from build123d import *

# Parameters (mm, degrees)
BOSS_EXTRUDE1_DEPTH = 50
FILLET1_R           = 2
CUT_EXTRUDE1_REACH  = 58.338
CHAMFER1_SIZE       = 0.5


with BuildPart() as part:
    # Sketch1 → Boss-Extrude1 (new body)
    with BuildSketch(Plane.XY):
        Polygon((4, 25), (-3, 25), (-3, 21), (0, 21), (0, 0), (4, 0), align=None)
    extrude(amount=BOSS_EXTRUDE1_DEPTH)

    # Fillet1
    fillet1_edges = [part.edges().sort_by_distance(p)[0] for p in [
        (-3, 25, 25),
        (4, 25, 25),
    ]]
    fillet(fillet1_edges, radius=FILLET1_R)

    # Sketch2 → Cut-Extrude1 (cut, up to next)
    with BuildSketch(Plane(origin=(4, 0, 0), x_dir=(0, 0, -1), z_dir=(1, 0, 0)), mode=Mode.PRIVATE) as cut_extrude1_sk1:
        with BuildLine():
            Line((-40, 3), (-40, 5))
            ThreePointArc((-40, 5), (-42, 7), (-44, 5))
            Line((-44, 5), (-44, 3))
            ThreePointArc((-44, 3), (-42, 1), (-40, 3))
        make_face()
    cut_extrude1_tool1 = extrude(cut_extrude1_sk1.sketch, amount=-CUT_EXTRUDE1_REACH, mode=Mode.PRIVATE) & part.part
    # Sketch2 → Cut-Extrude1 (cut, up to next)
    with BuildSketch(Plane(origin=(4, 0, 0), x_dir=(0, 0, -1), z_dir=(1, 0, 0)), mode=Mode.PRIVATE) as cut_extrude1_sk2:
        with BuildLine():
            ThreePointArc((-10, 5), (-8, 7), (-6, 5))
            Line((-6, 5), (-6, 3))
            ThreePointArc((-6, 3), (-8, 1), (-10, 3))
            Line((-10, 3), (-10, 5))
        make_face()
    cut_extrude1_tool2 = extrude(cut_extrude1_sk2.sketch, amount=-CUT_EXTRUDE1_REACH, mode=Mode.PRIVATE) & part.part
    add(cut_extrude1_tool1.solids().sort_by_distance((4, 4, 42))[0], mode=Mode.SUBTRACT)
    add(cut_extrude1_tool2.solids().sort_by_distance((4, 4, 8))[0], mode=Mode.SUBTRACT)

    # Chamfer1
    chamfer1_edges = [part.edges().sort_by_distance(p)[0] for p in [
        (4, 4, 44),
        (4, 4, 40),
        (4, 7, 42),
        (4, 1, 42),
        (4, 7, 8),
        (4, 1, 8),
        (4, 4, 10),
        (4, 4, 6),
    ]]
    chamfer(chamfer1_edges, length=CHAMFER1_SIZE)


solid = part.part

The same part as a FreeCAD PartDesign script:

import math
import FreeCAD as App
import Part
import Sketcher


def edges_at(feature, points):
    """Names of the edges that pass closest to the given points."""
    edges = feature.Shape.Edges
    near = lambda p: min(range(len(edges)), key=lambda i: edges[i].distToShape(Part.Vertex(*p))[0])
    return sorted({f"Edge{near(p) + 1}" for p in points})

doc = App.newDocument("Part")
body = doc.addObject("PartDesign::Body", "Body")

# Sketch on XY plane
sketch1 = body.newObject("Sketcher::SketchObject", "Sketch")
sketch1.AttachmentSupport = (doc.getObject("XY_Plane"), [""])
sketch1.MapMode = "FlatFace"
sketch1.addGeometry([
    Part.LineSegment(App.Vector(4, 25, 0), App.Vector(-3, 25, 0)),  # 0
    Part.LineSegment(App.Vector(-3, 25, 0), App.Vector(-3, 21, 0)),  # 1
    Part.LineSegment(App.Vector(-3, 21, 0), App.Vector(0, 21, 0)),  # 2
    Part.LineSegment(App.Vector(0, 21, 0), App.Vector(0, 0, 0)),  # 3
    Part.LineSegment(App.Vector(0, 0, 0), App.Vector(4, 0, 0)),  # 4
    Part.LineSegment(App.Vector(4, 0, 0), App.Vector(4, 25, 0)),  # 5
], False)
sketch1.addConstraint([
    Sketcher.Constraint("Coincident", 0, 2, 1, 1),
    Sketcher.Constraint("Coincident", 1, 2, 2, 1),
    Sketcher.Constraint("Coincident", 2, 2, 3, 1),
    Sketcher.Constraint("Coincident", 3, 2, 4, 1),
    Sketcher.Constraint("Coincident", 4, 2, 5, 1),
    Sketcher.Constraint("Coincident", 5, 2, 0, 1),
    Sketcher.Constraint("Horizontal", 0),
    Sketcher.Constraint("Vertical", 1),
    Sketcher.Constraint("Horizontal", 2),
    Sketcher.Constraint("Vertical", 3),
    Sketcher.Constraint("Horizontal", 4),
    Sketcher.Constraint("Vertical", 5),
    Sketcher.Constraint("Coincident", 3, 2, -1, 1),
    Sketcher.Constraint("Equal", 4, 1),
    Sketcher.Constraint("DistanceX", 0, 2, 0, 1, 7.0),
    Sketcher.Constraint("DistanceX", 2, 1, 2, 2, 3.0),
    Sketcher.Constraint("DistanceY", 3, 2, 3, 1, 21.0),
])
pad1 = body.newObject("PartDesign::Pad", "Pad")
pad1.Profile = sketch1
pad1.Length = 50
doc.recompute()

fillet = body.newObject("PartDesign::Fillet", "Fillet")
fillet.Base = (pad1, edges_at(pad1, [(-3, 25, 25), (4, 25, 25)]))
fillet.Radius = 2

# Sketch on YZ plane
sketch2 = body.newObject("Sketcher::SketchObject", "Sketch001")
sketch2.AttachmentSupport = (doc.getObject("YZ_Plane"), [""])
sketch2.MapMode = "FlatFace"
sketch2.AttachmentOffset = App.Placement(App.Vector(0, 0, 4), App.Rotation())
sketch2.addGeometry([
    Part.LineSegment(App.Vector(3, 40, 0), App.Vector(5, 40, 0)),
    Part.ArcOfCircle(Part.Circle(App.Vector(5, 42, 0), App.Vector(0, 0, 1), 2), math.radians(-90), math.radians(90)),
    Part.LineSegment(App.Vector(5, 44, 0), App.Vector(3, 44, 0)),
    Part.ArcOfCircle(Part.Circle(App.Vector(3, 42, 0), App.Vector(0, 0, 1), 2), math.radians(90), math.radians(270)),
], False)
sketch2.addConstraint([
    Sketcher.Constraint("Tangent", 0, 2, 1, 1),
    Sketcher.Constraint("Tangent", 1, 2, 2, 1),
    Sketcher.Constraint("Tangent", 2, 2, 3, 1),
    Sketcher.Constraint("Tangent", 3, 2, 0, 1),
    Sketcher.Constraint("Horizontal", 0),
    Sketcher.Constraint("Horizontal", 2),
    Sketcher.Constraint("Radius", 1, 2.0),
    Sketcher.Constraint("DistanceX", 0, 1, 0, 2, 2.0),
    Sketcher.Constraint("DistanceX", -1, 1, 1, 3, 5.0),
    Sketcher.Constraint("DistanceY", -1, 1, 1, 3, 42.0),
])
pocket1 = body.newObject("PartDesign::Pocket", "Pocket")
pocket1.Profile = sketch2
pocket1.Type = "UpToFirst"

# Sketch on YZ plane
sketch3 = body.newObject("Sketcher::SketchObject", "Sketch002")
sketch3.AttachmentSupport = (doc.getObject("YZ_Plane"), [""])
sketch3.MapMode = "FlatFace"
sketch3.AttachmentOffset = App.Placement(App.Vector(0, 0, 4), App.Rotation())
sketch3.addGeometry([
    Part.ArcOfCircle(Part.Circle(App.Vector(5, 8, 0), App.Vector(0, 0, 1), 2), math.radians(-90), math.radians(90)),
    Part.LineSegment(App.Vector(5, 10, 0), App.Vector(3, 10, 0)),
    Part.ArcOfCircle(Part.Circle(App.Vector(3, 8, 0), App.Vector(0, 0, 1), 2), math.radians(90), math.radians(270)),
    Part.LineSegment(App.Vector(3, 6, 0), App.Vector(5, 6, 0)),
], False)
sketch3.addConstraint([
    Sketcher.Constraint("Tangent", 0, 2, 1, 1),
    Sketcher.Constraint("Tangent", 1, 2, 2, 1),
    Sketcher.Constraint("Tangent", 2, 2, 3, 1),
    Sketcher.Constraint("Tangent", 3, 2, 0, 1),
    Sketcher.Constraint("Horizontal", 1),
    Sketcher.Constraint("Horizontal", 3),
    Sketcher.Constraint("Radius", 0, 2.0),
    Sketcher.Constraint("DistanceX", 1, 2, 1, 1, 2.0),
    Sketcher.Constraint("DistanceX", -1, 1, 0, 3, 5.0),
    Sketcher.Constraint("DistanceY", -1, 1, 0, 3, 8.0),
])
pocket2 = body.newObject("PartDesign::Pocket", "Pocket001")
pocket2.Profile = sketch3
pocket2.Type = "UpToFirst"
doc.recompute()

chamfer = body.newObject("PartDesign::Chamfer", "Chamfer")
chamfer.Base = (pocket2, edges_at(pocket2, [
    (4, 4, 44),
    (4, 4, 40),
    (4, 7, 42),
    (4, 1, 42),
    (4, 7, 8),
    (4, 1, 8),
    (4, 4, 10),
    (4, 4, 6),
]))
chamfer.Size = 0.5

doc.recompute()
